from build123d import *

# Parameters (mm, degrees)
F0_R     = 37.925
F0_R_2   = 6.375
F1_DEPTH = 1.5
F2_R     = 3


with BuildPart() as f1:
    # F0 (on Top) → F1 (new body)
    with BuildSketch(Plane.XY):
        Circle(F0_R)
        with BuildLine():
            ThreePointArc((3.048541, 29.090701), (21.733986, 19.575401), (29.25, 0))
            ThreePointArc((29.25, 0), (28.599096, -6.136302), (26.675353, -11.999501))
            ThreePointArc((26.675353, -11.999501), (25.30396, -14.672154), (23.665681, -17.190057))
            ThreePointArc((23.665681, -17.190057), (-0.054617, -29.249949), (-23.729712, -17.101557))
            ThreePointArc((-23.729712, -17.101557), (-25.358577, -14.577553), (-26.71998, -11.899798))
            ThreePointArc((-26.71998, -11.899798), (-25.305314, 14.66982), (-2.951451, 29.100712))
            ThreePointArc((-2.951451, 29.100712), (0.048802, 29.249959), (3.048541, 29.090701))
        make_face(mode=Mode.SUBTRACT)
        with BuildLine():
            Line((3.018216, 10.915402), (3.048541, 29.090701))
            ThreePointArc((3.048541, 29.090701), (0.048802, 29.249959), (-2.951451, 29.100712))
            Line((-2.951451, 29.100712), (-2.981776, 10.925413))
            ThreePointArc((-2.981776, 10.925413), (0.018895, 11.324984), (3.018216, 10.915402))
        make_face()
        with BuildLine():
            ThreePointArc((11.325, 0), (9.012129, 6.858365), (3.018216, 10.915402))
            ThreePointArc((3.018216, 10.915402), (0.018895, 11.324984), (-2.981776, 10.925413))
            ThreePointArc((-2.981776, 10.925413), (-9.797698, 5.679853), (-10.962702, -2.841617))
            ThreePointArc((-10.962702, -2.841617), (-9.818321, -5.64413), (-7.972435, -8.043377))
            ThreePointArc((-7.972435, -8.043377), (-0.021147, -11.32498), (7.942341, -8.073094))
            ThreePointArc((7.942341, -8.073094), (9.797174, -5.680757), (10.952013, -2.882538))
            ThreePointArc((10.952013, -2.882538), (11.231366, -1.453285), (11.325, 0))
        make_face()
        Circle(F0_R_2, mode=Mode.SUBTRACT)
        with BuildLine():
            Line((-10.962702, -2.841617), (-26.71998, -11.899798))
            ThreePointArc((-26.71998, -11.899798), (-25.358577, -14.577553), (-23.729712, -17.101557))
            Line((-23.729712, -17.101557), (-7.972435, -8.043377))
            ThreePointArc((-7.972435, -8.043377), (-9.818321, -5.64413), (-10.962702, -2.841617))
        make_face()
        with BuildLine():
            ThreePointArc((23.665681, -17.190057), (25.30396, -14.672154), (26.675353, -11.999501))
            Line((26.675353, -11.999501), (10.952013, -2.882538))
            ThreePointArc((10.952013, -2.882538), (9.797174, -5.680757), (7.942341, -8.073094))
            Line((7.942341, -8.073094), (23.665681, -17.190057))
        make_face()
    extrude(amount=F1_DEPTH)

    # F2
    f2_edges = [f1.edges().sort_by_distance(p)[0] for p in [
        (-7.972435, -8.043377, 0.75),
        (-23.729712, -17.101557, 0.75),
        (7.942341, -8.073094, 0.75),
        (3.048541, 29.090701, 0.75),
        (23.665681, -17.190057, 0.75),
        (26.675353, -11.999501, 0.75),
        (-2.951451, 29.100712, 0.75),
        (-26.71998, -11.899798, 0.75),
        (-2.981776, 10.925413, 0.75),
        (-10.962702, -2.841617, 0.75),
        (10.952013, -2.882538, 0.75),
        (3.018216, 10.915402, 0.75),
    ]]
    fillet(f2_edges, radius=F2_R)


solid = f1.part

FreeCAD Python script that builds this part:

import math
import FreeCAD as App
import Part
import Sketcher

V = App.Vector
Q = App.Units.Quantity


def edges_at(feature, points):
    """Names of the edges that pass closest to the given points."""
    edges = feature.Shape.Edges
    near = lambda p: min(range(len(edges)), key=lambda i: edges[i].distToShape(Part.Vertex(*p))[0])
    return sorted({f"Edge{near(p) + 1}" for p in points})

doc = App.newDocument("Part")
body = doc.addObject("PartDesign::Body", "Body")

# Sketch on XY plane
sketch1 = body.newObject("Sketcher::SketchObject", "Sketch")
sketch1.AttachmentSupport = (doc.getObject("XY_Plane"), [""])
sketch1.MapMode = "FlatFace"
sketch1.addGeometry(Part.Circle(V(0, 0, 0), V(0, 0, 1), 37.925), False)
sketch1.addGeometry(Part.ArcOfCircle(Part.Circle(V(-0.000001, 0, 0), V(0, 0, 1), 29.25), math.radians(95.791245), math.radians(204.0059)), False)
sketch1.addGeometry(Part.LineSegment(V(-2.951451, 29.100712, 0), V(-2.981776, 10.925413, 0)), False)
sketch1.addGeometry(Part.ArcOfCircle(Part.Circle(V(0.000002, -0.000001, 0), V(0, 0, 1), 11.325002), math.radians(105.265465), math.radians(194.531682)), False)
sketch1.addGeometry(Part.LineSegment(V(-10.962702, -2.841617, 0), V(-26.71998, -11.899798, 0)), False)
sketch1.addGeometry(Part.ArcOfCircle(Part.Circle(V(0, 0, 0), V(0, 0, 1), 29.25), math.radians(-144.220417), math.radians(-35.993556)), False)
sketch1.addGeometry(Part.LineSegment(V(-23.729712, -17.101557, 0), V(-7.972435, -8.043377, 0)), False)
sketch1.addGeometry(Part.ArcOfCircle(Part.Circle(V(0, 0.000002, 0), V(0, 0, 1), 11.325001), math.radians(-134.746203), math.radians(-45.467768)), False)
sketch1.addGeometry(Part.LineSegment(V(7.942341, -8.073094, 0), V(23.665681, -17.190057, 0)), False)
sketch1.addGeometry(Part.ArcOfCircle(Part.Circle(V(0, 0.000002, 0), V(0, 0, 1), 11.325), math.radians(-14.745673), math.radians(-0.00001)), False)
sketch1.addGeometry(Part.ArcOfCircle(Part.Circle(V(0.000002, 0.000002, 0), V(0, 0, 1), 11.324998), math.radians(-0.000009), math.radians(74.543363)), False)
sketch1.addGeometry(Part.LineSegment(V(3.018216, 10.915402, 0), V(3.048541, 29.090701, 0)), False)
sketch1.addGeometry(Part.ArcOfCircle(Part.Circle(V(-0.000001, -0.000001, 0), V(0, 0, 1), 29.250001), math.radians(0.000002), math.radians(84.01756)), False)
sketch1.addGeometry(Part.ArcOfCircle(Part.Circle(V(0.000003, 0, 0), V(0, 0, 1), 29.249997), math.radians(-24.219874), math.radians(0)), False)
sketch1.addGeometry(Part.LineSegment(V(26.675353, -11.999501, 0), V(10.952013, -2.882538, 0)), False)
sketch1.addGeometry(Part.Circle(V(0, 0, 0), V(0, 0, 1), 6.375), False)
sketch1.addConstraint(Sketcher.Constraint("Coincident", 1, 1, 2, 1))
sketch1.addConstraint(Sketcher.Constraint("Coincident", 2, 2, 3, 1))
sketch1.addConstraint(Sketcher.Constraint("Coincident", 3, 2, 4, 1))
sketch1.addConstraint(Sketcher.Constraint("Coincident", 4, 2, 1, 2))
sketch1.addConstraint(Sketcher.Constraint("Coincident", 5, 1, 6, 1))
sketch1.addConstraint(Sketcher.Constraint("Coincident", 6, 2, 7, 1))
sketch1.addConstraint(Sketcher.Constraint("Coincident", 7, 2, 8, 1))
sketch1.addConstraint(Sketcher.Constraint("Coincident", 8, 2, 5, 2))
sketch1.addConstraint(Sketcher.Constraint("Coincident", 9, 2, 10, 1))
sketch1.addConstraint(Sketcher.Constraint("Coincident", 10, 2, 11, 1))
sketch1.addConstraint(Sketcher.Constraint("Coincident", 11, 2, 12, 2))
sketch1.addConstraint(Sketcher.Constraint("Coincident", 12, 1, 13, 2))
sketch1.addConstraint(Sketcher.Constraint("Coincident", 13, 1, 14, 1))
sketch1.addConstraint(Sketcher.Constraint("Coincident", 14, 2, 9, 1))
sketch1.addConstraint(Sketcher.Constraint("Coincident", 0, 3, -1, 1))
sketch1.addConstraint(Sketcher.Constraint("Coincident", 1, 3, -1, 1))
sketch1.addConstraint(Sketcher.Constraint("Coincident", 3, 3, -1, 1))
sketch1.addConstraint(Sketcher.Constraint("Coincident", 5, 3, -1, 1))
sketch1.addConstraint(Sketcher.Constraint("Coincident", 7, 3, -1, 1))
sketch1.addConstraint(Sketcher.Constraint("Coincident", 9, 3, -1, 1))
sketch1.addConstraint(Sketcher.Constraint("Coincident", 10, 3, -1, 1))
sketch1.addConstraint(Sketcher.Constraint("Coincident", 12, 3, -1, 1))
sketch1.addConstraint(Sketcher.Constraint("Coincident", 13, 3, -1, 1))
sketch1.addConstraint(Sketcher.Constraint("Coincident", 15, 3, -1, 1))
sketch1.addConstraint(Sketcher.Constraint("PointOnObject", 9, 2, -1))
sketch1.addConstraint(Sketcher.Constraint("PointOnObject", 12, 1, -1))
sketch1.addConstraint(Sketcher.Constraint("Diameter", 0, Q("75.85 mm")))
sketch1.addConstraint(Sketcher.Constraint("Diameter", 15, Q("12.75 mm")))
sketch1.addConstraint(Sketcher.Constraint("Radius", 1, Q("29.25 mm")))
sketch1.addConstraint(Sketcher.Constraint("Radius", 5, Q("29.25 mm")))
sketch1.addConstraint(Sketcher.Constraint("Radius", 12, Q("29.250001 mm")))
sketch1.addConstraint(Sketcher.Constraint("Radius", 3, Q("11.325002 mm")))
sketch1.addConstraint(Sketcher.Constraint("Radius", 7, Q("11.325001 mm")))
sketch1.addConstraint(Sketcher.Constraint("Radius", 9, Q("11.325 mm")))
sketch1.addConstraint(Sketcher.Constraint("DistanceX", 3, 2, -1, 1, Q("10.962702 mm")))
sketch1.addConstraint(Sketcher.Constraint("DistanceY", -1, 1, 11, 2, Q("29.090701 mm")))
sketch1.addConstraint(Sketcher.Constraint("DistanceY", 13, 1, -1, 1, Q("11.999501 mm")))
sketch1.addConstraint(Sketcher.Constraint("DistanceY", 4, 2, 1, 3, Q("11.899798 mm")))
sketch1.addConstraint(Sketcher.Constraint("DistanceY", 10, 3, 10, 2, Q("10.9154 mm")))
sketch1.addConstraint(Sketcher.Constraint("DistanceX", 1, 1, -1, 1, Q("2.951451 mm")))
sketch1.addConstraint(Sketcher.Constraint("DistanceX", -1, 1, 7, 2, Q("7.942341 mm")))
sketch1.addConstraint(Sketcher.Constraint("DistanceX", -1, 1, 8, 2, Q("23.665681 mm")))
sketch1.addConstraint(Sketcher.Constraint("DistanceY", 9, 3, 2, 2, Q("10.925411 mm")))
sketch1.addConstraint(Sketcher.Constraint("DistanceY", 5, 1, 4, 2, Q("5.201759 mm")))
sketch1.addConstraint(Sketcher.Constraint("DistanceY", 6, 2, 3, 2, Q("5.20176 mm")))
sketch1.addConstraint(Sketcher.Constraint("DistanceX", 7, 2, 14, 2, Q("3.009672 mm")))
pad1 = body.newObject("PartDesign::Pad", "Pad")
pad1.Profile = sketch1
pad1.Length = 1.5
doc.recompute()

fillet = body.newObject("PartDesign::Fillet", "Fillet")
fillet.Base = (pad1, edges_at(pad1, [
    (-7.972, -8.043, 0.75),
    (-23.73, -17.102, 0.75),
    (7.942, -8.073, 0.75),
    (3.049, 29.091, 0.75),
    (23.666, -17.19, 0.75),
    (26.675, -12, 0.75),
    (-2.951, 29.101, 0.75),
    (-26.72, -11.9, 0.75),
    (-2.982, 10.925, 0.75),
    (-10.963, -2.842, 0.75),
    (10.952, -2.883, 0.75),
    (3.018, 10.915, 0.75),
]))
fillet.Radius = 3

doc.recompute()
